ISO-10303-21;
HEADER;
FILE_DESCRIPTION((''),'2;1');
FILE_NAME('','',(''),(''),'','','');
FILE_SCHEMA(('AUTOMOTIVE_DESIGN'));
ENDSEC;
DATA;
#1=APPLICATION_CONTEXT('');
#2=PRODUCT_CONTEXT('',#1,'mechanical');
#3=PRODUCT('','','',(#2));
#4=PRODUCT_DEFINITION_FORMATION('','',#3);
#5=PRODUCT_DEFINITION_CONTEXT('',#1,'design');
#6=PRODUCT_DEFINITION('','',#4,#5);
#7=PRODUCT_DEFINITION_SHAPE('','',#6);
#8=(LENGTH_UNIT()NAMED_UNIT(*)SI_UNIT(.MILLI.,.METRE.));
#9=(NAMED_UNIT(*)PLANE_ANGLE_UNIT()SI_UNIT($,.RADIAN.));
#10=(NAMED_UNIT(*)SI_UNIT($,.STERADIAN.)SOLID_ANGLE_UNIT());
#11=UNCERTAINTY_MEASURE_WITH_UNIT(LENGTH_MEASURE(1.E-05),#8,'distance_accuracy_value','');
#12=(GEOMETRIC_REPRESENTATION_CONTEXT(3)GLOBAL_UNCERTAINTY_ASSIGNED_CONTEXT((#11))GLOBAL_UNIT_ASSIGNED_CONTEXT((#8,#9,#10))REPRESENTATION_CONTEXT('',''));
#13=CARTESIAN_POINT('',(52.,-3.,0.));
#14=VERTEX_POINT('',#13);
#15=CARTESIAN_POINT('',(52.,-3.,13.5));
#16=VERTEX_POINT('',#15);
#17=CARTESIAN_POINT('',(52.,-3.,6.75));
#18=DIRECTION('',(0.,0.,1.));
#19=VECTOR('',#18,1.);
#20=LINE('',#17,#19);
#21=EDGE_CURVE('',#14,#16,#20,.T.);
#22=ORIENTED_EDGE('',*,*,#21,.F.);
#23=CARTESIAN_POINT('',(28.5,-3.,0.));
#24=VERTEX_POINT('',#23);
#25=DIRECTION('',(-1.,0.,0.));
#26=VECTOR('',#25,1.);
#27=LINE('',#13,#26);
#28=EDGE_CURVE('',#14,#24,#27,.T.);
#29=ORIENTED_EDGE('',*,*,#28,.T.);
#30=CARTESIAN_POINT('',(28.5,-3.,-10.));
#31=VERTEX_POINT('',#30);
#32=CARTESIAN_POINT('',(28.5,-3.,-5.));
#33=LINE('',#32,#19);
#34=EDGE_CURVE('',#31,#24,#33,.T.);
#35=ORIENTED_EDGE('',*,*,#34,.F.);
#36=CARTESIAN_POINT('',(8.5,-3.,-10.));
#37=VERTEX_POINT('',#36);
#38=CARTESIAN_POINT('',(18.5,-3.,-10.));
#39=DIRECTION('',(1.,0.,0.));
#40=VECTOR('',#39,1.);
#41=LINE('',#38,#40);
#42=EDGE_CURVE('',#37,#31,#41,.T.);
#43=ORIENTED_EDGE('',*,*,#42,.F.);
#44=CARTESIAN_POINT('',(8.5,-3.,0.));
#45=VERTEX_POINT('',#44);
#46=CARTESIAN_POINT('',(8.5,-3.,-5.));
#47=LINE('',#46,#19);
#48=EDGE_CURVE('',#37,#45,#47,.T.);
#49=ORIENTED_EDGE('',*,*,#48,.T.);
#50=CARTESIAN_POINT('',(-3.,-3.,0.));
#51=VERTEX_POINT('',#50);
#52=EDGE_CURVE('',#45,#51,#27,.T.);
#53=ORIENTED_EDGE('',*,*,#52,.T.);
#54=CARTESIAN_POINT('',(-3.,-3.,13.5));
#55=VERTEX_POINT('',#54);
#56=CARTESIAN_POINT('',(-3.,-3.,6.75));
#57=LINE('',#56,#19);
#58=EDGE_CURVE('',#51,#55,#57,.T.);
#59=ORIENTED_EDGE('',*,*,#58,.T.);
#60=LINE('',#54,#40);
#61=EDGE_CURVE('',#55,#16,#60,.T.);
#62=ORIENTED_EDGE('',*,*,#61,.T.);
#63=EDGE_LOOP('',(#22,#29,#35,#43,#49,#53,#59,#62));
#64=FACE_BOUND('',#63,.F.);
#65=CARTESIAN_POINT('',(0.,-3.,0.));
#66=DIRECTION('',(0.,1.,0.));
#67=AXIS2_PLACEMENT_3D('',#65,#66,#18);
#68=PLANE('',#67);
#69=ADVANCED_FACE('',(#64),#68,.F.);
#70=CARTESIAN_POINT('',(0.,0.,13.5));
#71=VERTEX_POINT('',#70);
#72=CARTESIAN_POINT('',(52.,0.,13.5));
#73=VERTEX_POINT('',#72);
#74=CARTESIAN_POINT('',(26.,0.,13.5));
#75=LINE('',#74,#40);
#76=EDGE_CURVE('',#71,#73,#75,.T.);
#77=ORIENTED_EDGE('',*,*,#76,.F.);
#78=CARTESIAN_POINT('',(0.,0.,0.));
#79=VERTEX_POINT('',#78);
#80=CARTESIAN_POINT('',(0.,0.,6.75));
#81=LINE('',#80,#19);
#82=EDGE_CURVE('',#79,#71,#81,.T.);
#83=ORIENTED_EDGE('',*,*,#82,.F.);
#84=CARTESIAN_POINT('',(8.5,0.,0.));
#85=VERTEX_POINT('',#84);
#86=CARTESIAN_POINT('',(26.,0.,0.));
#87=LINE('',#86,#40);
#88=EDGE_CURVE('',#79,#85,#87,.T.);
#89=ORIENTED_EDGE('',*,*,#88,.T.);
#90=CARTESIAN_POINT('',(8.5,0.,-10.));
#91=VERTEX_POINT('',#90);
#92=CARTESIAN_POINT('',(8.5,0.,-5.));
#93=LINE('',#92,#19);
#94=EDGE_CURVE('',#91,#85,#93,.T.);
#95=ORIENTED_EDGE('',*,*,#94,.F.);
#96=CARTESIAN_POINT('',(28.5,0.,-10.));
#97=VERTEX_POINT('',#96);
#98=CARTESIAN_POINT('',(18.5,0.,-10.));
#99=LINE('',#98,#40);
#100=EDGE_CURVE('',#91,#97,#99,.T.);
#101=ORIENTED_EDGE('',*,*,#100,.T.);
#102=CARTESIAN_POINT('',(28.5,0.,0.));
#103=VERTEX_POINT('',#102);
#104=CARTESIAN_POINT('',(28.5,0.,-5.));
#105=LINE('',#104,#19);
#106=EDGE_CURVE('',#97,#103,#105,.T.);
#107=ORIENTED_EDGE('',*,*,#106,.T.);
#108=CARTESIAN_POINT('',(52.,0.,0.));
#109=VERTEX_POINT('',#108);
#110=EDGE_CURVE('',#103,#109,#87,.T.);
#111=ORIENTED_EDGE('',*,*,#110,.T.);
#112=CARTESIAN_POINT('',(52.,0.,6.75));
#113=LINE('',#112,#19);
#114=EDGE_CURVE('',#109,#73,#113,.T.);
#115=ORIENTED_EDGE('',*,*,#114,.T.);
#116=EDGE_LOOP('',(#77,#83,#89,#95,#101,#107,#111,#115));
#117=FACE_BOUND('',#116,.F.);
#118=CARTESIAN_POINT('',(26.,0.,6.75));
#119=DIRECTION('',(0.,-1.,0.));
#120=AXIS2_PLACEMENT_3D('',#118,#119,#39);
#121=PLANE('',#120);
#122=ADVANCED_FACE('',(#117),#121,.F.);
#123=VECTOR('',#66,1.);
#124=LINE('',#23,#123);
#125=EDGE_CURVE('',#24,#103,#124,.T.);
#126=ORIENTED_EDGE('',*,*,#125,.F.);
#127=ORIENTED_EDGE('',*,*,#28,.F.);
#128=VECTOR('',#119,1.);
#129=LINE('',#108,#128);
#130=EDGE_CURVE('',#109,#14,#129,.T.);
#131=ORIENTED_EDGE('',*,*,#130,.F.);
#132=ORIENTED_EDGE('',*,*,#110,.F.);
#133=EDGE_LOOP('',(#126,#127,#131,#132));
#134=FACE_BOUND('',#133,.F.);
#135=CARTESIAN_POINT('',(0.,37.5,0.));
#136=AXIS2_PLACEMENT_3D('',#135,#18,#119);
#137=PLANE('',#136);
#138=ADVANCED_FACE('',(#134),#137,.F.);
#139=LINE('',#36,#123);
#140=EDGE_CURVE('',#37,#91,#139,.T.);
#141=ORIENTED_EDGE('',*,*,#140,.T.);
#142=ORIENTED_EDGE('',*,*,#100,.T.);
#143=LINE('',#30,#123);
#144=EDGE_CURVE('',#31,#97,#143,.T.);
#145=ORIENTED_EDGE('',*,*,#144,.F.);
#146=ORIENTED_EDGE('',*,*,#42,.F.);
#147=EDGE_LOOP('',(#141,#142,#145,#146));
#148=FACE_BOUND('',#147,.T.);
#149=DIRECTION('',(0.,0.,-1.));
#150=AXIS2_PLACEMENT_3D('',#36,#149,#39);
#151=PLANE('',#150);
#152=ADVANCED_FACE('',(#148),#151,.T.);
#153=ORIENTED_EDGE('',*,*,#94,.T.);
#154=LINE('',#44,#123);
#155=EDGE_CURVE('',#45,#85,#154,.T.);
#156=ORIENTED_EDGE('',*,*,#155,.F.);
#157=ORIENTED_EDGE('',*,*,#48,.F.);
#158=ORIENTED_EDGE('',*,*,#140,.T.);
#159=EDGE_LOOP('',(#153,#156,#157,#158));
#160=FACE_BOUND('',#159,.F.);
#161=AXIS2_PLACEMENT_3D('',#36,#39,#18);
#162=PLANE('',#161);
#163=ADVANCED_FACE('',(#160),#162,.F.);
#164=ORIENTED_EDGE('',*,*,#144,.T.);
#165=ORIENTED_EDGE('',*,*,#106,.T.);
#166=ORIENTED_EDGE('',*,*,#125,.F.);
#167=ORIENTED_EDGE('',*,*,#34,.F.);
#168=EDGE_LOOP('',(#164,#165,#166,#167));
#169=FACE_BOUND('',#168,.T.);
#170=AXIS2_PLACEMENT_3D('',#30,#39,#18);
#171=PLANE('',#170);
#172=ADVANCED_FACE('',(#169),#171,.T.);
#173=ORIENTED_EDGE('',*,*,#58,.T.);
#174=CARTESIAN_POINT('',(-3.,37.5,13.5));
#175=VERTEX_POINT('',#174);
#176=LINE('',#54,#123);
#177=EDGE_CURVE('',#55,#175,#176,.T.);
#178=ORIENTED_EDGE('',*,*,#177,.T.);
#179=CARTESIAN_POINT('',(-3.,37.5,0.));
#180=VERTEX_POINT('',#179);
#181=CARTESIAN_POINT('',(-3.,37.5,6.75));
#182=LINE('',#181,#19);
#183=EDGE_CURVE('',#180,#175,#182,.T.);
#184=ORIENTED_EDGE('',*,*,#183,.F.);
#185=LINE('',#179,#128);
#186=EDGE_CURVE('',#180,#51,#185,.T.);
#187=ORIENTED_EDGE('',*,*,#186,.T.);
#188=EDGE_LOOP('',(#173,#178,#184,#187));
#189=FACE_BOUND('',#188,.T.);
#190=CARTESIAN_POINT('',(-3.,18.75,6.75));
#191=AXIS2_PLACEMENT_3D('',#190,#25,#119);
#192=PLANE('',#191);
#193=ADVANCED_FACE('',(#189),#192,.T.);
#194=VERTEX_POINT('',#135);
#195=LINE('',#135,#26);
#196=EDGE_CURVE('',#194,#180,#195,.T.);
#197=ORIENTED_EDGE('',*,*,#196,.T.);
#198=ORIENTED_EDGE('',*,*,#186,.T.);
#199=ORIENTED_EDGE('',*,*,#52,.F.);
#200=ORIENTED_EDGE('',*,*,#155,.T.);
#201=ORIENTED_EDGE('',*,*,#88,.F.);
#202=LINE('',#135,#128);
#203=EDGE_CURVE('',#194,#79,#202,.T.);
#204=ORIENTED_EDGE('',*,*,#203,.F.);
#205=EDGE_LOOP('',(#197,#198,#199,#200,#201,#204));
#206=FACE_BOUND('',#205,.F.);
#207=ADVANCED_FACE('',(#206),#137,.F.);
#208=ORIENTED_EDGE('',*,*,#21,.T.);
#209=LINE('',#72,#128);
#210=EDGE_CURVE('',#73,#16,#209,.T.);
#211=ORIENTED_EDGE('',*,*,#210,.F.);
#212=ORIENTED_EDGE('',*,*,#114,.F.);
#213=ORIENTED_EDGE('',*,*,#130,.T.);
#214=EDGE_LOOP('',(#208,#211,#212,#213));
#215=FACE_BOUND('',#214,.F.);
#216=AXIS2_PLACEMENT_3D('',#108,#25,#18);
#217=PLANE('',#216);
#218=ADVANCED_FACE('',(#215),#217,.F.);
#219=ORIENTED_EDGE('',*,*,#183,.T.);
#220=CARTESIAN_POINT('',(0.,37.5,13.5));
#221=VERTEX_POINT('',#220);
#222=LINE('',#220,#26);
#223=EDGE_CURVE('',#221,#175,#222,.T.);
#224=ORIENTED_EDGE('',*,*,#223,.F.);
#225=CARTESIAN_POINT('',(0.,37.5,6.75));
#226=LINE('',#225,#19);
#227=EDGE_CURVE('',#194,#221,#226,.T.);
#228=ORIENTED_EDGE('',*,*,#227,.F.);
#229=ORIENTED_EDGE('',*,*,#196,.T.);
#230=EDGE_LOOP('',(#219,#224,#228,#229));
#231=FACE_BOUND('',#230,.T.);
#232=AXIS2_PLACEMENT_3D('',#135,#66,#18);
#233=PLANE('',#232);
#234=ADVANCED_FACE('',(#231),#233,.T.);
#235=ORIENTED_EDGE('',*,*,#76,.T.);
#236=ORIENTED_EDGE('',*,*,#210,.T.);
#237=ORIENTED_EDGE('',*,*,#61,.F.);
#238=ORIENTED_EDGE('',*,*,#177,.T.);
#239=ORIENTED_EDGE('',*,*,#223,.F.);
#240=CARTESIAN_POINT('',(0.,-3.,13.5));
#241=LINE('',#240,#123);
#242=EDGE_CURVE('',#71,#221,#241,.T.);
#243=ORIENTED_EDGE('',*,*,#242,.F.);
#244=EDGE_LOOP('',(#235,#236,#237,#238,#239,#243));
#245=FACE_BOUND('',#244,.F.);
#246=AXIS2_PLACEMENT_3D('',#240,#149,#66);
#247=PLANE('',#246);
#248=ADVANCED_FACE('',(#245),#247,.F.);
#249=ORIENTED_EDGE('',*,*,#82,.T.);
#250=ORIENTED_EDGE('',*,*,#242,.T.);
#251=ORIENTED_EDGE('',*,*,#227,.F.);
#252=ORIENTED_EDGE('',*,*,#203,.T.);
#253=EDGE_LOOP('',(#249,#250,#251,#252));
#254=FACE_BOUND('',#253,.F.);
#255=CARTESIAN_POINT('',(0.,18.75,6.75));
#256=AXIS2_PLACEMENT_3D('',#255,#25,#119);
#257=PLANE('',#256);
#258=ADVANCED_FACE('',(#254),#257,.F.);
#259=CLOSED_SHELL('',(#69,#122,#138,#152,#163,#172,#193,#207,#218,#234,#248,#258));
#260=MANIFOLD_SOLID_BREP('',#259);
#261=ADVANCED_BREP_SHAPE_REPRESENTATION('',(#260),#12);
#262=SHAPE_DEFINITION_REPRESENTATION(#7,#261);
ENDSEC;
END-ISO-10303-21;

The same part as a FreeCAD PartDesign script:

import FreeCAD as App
import Part
import Sketcher

V = App.Vector

doc = App.newDocument("Part")
body = doc.addObject("PartDesign::Body", "Body")

sketch1 = body.newObject("Sketcher::SketchObject", "Sketch")
sketch1.AttachmentSupport = (doc.getObject("XZ_Plane"), [""])
sketch1.MapMode = "FlatFace"
sketch1.addGeometry([
    Part.LineSegment(V(0, 14, 0), V(0, 0, 0)),
    Part.LineSegment(V(0, 0, 0), V(52, 0, 0)),
    Part.LineSegment(V(52, 0, 0), V(52, 14, 0)),
    Part.LineSegment(V(52, 14, 0), V(0, 14, 0)),
], False)
sketch1.addConstraint([
    Sketcher.Constraint("Coincident", 0, 2, 1, 1),
    Sketcher.Constraint("Coincident", 1, 2, 2, 1),
    Sketcher.Constraint("Coincident", 2, 2, 3, 1),
    Sketcher.Constraint("Coincident", 3, 2, 0, 1),
    Sketcher.Constraint("Vertical", 0),
    Sketcher.Constraint("Horizontal", 1),
    Sketcher.Constraint("Vertical", 2),
    Sketcher.Constraint("Horizontal", 3),
    Sketcher.Constraint("Coincident", 0, 2, -1, 1),
    Sketcher.Constraint("DistanceX", 1, 1, 1, 2, 52.0),
    Sketcher.Constraint("DistanceY", 0, 2, 0, 1, 13.5),
])
pad1 = body.newObject("PartDesign::Pad", "Pad")
pad1.Profile = sketch1
pad1.Length = 3

sketch2 = body.newObject("Sketcher::SketchObject", "Sketch001")
sketch2.AttachmentSupport = (doc.getObject("YZ_Plane"), [""])
sketch2.MapMode = "FlatFace"
sketch2.addGeometry([
    Part.LineSegment(V(38, 14, 0), V(38, 0, 0)),
    Part.LineSegment(V(38, 0, 0), V(-3, 0, 0)),
    Part.LineSegment(V(-3, 0, 0), V(-3, 14, 0)),
    Part.LineSegment(V(-3, 14, 0), V(38, 14, 0)),
], False)
sketch2.addConstraint([
    Sketcher.Constraint("Coincident", 0, 2, 1, 1),
    Sketcher.Constraint("Coincident", 1, 2, 2, 1),
    Sketcher.Constraint("Coincident", 2, 2, 3, 1),
    Sketcher.Constraint("Coincident", 3, 2, 0, 1),
    Sketcher.Constraint("Vertical", 0),
    Sketcher.Constraint("Horizontal", 1),
    Sketcher.Constraint("Vertical", 2),
    Sketcher.Constraint("Horizontal", 3),
    Sketcher.Constraint("PointOnObject", 0, 2, -1),
    Sketcher.Constraint("DistanceX", 1, 2, 1, 1, 40.5),
    Sketcher.Constraint("DistanceY", 0, 2, 0, 1, 13.5),
    Sketcher.Constraint("DistanceX", 1, 2, -1, 1, 3.0),
])
pad2 = body.newObject("PartDesign::Pad", "Pad001")
pad2.Profile = sketch2
pad2.Length = 3
pad2.Reversed = True

sketch3 = body.newObject("Sketcher::SketchObject", "Sketch002")
sketch3.AttachmentSupport = (doc.getObject("XZ_Plane"), [""])
sketch3.MapMode = "FlatFace"
sketch3.AttachmentOffset = App.Placement(V(0, 0, 3), App.Rotation())
sketch3.addGeometry([
    Part.LineSegment(V(8, 0, 0), V(8, -10, 0)),
    Part.LineSegment(V(8, -10, 0), V(28, -10, 0)),
    Part.LineSegment(V(28, -10, 0), V(28, 0, 0)),
    Part.LineSegment(V(28, 0, 0), V(8, 0, 0)),
], False)
sketch3.addConstraint([
    Sketcher.Constraint("Coincident", 0, 2, 1, 1),
    Sketcher.Constraint("Coincident", 1, 2, 2, 1),
    Sketcher.Constraint("Coincident", 2, 2, 3, 1),
    Sketcher.Constraint("Coincident", 3, 2, 0, 1),
    Sketcher.Constraint("Vertical", 0),
    Sketcher.Constraint("Horizontal", 1),
    Sketcher.Constraint("Vertical", 2),
    Sketcher.Constraint("Horizontal", 3),
    Sketcher.Constraint("PointOnObject", 2, 2, -1),
    Sketcher.Constraint("DistanceX", 1, 1, 1, 2, 20.0),
    Sketcher.Constraint("DistanceY", 0, 2, 0, 1, 10.0),
    Sketcher.Constraint("DistanceX", -1, 1, 0, 2, 8.5),
])
pad3 = body.newObject("PartDesign::Pad", "Pad002")
pad3.Profile = sketch3
pad3.Length = 3
pad3.Reversed = True

doc.recompute()
